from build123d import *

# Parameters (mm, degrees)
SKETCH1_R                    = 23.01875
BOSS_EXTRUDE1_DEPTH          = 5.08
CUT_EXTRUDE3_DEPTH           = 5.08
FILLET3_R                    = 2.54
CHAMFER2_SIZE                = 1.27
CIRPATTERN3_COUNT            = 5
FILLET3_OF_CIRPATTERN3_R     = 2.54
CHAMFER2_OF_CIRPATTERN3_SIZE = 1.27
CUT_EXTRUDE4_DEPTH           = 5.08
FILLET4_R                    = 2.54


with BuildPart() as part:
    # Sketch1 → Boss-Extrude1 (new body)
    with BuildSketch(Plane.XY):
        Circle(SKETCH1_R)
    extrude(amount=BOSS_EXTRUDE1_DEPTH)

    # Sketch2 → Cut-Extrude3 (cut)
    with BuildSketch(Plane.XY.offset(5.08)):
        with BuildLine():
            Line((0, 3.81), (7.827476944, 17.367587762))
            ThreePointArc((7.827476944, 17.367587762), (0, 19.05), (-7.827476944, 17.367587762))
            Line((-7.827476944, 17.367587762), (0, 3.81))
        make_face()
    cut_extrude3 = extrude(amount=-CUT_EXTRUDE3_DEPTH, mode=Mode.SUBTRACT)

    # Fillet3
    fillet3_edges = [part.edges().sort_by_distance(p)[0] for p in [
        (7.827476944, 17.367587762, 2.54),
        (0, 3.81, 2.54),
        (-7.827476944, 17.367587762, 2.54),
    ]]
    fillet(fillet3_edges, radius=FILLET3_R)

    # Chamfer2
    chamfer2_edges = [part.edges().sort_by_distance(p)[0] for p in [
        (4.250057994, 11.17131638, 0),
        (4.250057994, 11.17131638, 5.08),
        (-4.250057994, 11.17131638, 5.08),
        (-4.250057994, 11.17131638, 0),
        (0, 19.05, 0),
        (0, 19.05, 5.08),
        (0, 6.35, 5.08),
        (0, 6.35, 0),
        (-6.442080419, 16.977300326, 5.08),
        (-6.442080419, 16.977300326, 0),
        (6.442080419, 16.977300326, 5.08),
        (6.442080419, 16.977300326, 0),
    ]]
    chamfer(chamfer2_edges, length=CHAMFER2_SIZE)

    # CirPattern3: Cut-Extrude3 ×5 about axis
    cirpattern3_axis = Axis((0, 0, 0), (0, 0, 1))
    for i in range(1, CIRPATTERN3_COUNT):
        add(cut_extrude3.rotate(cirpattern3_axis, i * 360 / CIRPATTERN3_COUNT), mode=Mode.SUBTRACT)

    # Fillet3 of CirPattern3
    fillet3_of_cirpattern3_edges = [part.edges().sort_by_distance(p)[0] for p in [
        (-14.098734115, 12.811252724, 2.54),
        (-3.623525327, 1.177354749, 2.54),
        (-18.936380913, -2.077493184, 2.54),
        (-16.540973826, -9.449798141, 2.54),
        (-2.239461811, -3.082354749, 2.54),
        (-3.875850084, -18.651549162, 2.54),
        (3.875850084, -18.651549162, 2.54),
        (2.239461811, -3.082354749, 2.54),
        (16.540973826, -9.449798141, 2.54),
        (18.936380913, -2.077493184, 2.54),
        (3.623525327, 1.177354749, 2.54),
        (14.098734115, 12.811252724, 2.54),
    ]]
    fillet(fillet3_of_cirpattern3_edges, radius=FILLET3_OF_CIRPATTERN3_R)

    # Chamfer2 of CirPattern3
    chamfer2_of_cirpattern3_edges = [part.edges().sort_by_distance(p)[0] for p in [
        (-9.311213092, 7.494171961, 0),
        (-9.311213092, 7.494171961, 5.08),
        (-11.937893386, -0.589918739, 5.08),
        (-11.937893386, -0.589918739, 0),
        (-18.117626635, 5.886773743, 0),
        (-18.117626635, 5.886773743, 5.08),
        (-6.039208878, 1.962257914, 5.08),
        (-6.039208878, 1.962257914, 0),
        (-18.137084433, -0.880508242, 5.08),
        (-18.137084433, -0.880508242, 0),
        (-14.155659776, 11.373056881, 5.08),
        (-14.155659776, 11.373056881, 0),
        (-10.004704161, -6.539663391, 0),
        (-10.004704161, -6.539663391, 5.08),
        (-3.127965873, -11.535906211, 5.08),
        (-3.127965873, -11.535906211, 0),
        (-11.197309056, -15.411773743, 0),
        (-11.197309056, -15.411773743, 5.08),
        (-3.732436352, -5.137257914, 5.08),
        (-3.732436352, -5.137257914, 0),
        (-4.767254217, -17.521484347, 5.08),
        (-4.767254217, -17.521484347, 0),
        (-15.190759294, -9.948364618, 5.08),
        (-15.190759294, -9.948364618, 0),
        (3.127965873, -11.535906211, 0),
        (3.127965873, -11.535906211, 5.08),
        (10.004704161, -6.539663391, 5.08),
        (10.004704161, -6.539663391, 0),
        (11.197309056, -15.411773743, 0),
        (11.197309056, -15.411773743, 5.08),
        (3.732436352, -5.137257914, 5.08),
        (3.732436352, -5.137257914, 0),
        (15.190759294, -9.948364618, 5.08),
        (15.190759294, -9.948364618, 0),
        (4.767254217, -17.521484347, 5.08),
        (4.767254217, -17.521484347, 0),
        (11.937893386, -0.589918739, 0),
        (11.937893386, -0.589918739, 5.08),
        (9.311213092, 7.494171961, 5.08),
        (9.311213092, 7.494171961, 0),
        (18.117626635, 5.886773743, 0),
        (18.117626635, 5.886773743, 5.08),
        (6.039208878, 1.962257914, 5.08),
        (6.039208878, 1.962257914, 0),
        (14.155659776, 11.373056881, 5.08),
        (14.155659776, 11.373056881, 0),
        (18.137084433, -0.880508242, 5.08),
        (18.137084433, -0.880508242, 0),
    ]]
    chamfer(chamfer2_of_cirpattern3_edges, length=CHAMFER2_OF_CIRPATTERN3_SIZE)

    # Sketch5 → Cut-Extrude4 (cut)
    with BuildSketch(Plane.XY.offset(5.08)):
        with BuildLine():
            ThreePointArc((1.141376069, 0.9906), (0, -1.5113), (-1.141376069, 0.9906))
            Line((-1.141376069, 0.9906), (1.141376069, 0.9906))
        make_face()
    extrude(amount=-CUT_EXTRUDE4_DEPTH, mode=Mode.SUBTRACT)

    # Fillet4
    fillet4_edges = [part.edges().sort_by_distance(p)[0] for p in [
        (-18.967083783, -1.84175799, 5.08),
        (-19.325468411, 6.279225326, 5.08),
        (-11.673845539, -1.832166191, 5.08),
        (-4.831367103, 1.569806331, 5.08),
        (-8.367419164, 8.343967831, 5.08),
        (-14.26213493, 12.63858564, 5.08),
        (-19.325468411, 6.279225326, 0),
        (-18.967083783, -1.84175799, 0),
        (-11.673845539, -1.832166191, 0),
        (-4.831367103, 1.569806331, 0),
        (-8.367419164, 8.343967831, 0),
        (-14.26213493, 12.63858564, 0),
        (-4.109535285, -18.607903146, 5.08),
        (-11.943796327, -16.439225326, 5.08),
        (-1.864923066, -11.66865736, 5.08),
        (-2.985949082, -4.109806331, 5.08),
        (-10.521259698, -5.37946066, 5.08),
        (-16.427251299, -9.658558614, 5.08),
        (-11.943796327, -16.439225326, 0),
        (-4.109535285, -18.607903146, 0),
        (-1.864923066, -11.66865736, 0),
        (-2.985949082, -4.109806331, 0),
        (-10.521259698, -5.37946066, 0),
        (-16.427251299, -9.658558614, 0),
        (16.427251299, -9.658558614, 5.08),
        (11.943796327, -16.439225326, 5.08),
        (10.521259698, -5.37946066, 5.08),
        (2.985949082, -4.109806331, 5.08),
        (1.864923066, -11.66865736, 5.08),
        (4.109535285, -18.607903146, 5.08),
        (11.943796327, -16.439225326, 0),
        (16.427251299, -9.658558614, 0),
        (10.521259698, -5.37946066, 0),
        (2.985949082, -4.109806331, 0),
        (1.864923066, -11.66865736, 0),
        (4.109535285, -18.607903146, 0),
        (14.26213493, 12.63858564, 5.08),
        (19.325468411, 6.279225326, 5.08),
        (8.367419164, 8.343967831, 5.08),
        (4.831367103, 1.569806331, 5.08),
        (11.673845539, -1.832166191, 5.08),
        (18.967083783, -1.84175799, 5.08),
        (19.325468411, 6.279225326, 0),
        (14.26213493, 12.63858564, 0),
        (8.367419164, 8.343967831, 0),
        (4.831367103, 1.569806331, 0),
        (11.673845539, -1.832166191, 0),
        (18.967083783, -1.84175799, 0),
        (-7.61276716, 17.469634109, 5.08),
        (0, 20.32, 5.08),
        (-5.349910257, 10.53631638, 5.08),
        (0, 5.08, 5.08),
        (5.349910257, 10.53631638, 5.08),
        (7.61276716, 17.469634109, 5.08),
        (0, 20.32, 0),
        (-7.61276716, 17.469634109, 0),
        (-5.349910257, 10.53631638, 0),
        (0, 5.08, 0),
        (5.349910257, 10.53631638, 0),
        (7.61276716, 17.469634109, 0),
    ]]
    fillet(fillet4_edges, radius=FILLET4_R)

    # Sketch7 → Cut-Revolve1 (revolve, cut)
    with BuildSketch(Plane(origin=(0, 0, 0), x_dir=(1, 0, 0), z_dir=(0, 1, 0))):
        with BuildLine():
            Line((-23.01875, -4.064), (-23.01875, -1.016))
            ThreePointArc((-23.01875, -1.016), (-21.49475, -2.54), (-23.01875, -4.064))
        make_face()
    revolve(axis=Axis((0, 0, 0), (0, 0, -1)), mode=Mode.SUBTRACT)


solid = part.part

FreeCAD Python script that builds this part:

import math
import FreeCAD as App
import Part
import Sketcher
from FreeCAD import Vector
Q = App.Units.Quantity


def edges_at(feature, points):
    """Names of the edges that pass closest to the given points."""
    edges = feature.Shape.Edges
    near = lambda p: min(range(len(edges)), key=lambda i: edges[i].distToShape(Part.Vertex(*p))[0])
    return sorted({f"Edge{near(p) + 1}" for p in points})

doc = App.newDocument("Part")
body = doc.addObject("PartDesign::Body", "Body")

sketch1 = body.newObject("Sketcher::SketchObject", "Sketch")
sketch1.AttachmentSupport = (doc.getObject("XY_Plane"), [""])
sketch1.MapMode = "FlatFace"
sketch1.addGeometry(Part.Circle(Vector(0, 0, 0), Vector(0, 0, 1), 23.01875), False)
sketch1.addConstraint([
    Sketcher.Constraint("Coincident", 0, 3, -1, 1),
    Sketcher.Constraint("Diameter", 0, Q("1.8125 in")),
])
pad1 = body.newObject("PartDesign::Pad", "Pad")
pad1.Profile = sketch1
pad1.Length = Q("0.2 in")

sketch2 = body.newObject("Sketcher::SketchObject", "Sketch001")
sketch2.AttachmentSupport = (doc.getObject("XY_Plane"), [""])
sketch2.MapMode = "FlatFace"
sketch2.AttachmentOffset = App.Placement(Vector(0, 0, 0.2 * 25.4), App.Rotation())
sketch2.addGeometry([
    Part.LineSegment(Vector(0, 3.81, 0), Vector(7.827477, 17.367588, 0)),
    Part.ArcOfCircle(Part.Circle(Vector(0, 0, 0), Vector(0, 0, 1), 19.05), math.radians(65.73917), math.radians(114.26083)),
    Part.LineSegment(Vector(-7.827477, 17.367588, 0), Vector(0, 3.81, 0)),
], False)
sketch2.addConstraint([
    Sketcher.Constraint("Coincident", 0, 2, 1, 1),
    Sketcher.Constraint("Coincident", 1, 2, 2, 1),
    Sketcher.Constraint("Coincident", 2, 2, 0, 1),
    Sketcher.Constraint("Coincident", 1, 3, -1, 1),
    Sketcher.Constraint("PointOnObject", 2, 2, -2),
    Sketcher.Constraint("Horizontal", 0, 2, 1, 2),
    Sketcher.Constraint("Radius", 1, Q("0.75 in")),
    Sketcher.Constraint("Angle", 0, Q("60 deg")),
    Sketcher.Constraint("DistanceY", -1, 1, 2, 2, Q("0.15 in")),
])
pocket1 = body.newObject("PartDesign::Pocket", "Pocket")
pocket1.Profile = sketch2
pocket1.Length = Q("0.2 in")
doc.recompute()

fillet = body.newObject("PartDesign::Fillet", "Fillet")
fillet.Base = (pocket1, edges_at(pocket1, [(7.827, 17.368, 2.54), (0, 3.81, 2.54), (-7.827, 17.368, 2.54)]))
fillet.Radius = Q("0.1 in")
doc.recompute()

chamfer = body.newObject("PartDesign::Chamfer", "Chamfer")
chamfer.Base = (fillet, edges_at(fillet, [
    (4.25, 11.171, 0),
    (4.25, 11.171, 5.08),
    (-4.25, 11.171, 5.08),
    (-4.25, 11.171, 0),
    (0, 19.05, 0),
    (0, 19.05, 5.08),
    (0, 6.35, 5.08),
    (0, 6.35, 0),
    (-6.442, 16.977, 5.08),
    (-6.442, 16.977, 0),
    (6.442, 16.977, 5.08),
    (6.442, 16.977, 0),
]))
chamfer.Size = Q("0.05 in")
doc.recompute()

polarpattern = body.newObject("PartDesign::PolarPattern", "PolarPattern")
polarpattern.Originals = [pocket1]
polarpattern.Axis = (doc.getObject("Z_Axis"), [""])
polarpattern.Angle = 360
polarpattern.Occurrences = 5
body.Tip = polarpattern
doc.recompute()

fillet2 = body.newObject("PartDesign::Fillet", "Fillet001")
fillet2.Base = (polarpattern, edges_at(polarpattern, [
    (-14.099, 12.811, 2.54),
    (-3.624, 1.177, 2.54),
    (-18.936, -2.077, 2.54),
    (-16.541, -9.45, 2.54),
    (-2.239, -3.082, 2.54),
    (-3.876, -18.652, 2.54),
    (3.876, -18.652, 2.54),
    (2.239, -3.082, 2.54),
    (16.541, -9.45, 2.54),
    (18.936, -2.077, 2.54),
    (3.624, 1.177, 2.54),
    (14.099, 12.811, 2.54),
]))
fillet2.Radius = Q("0.1 in")
doc.recompute()

chamfer2 = body.newObject("PartDesign::Chamfer", "Chamfer001")
chamfer2.Base = (fillet2, edges_at(fillet2, [
    (-9.311, 7.494, 0),
    (-9.311, 7.494, 5.08),
    (-11.938, -0.59, 5.08),
    (-11.938, -0.59, 0),
    (-18.118, 5.887, 0),
    (-18.118, 5.887, 5.08),
    (-6.039, 1.962, 5.08),
    (-6.039, 1.962, 0),
    (-18.137, -0.881, 5.08),
    (-18.137, -0.881, 0),
    (-14.156, 11.373, 5.08),
    (-14.156, 11.373, 0),
    (-10.005, -6.54, 0),
    (-10.005, -6.54, 5.08),
    (-3.128, -11.536, 5.08),
    (-3.128, -11.536, 0),
    (-11.197, -15.412, 0),
    (-11.197, -15.412, 5.08),
    (-3.732, -5.137, 5.08),
    (-3.732, -5.137, 0),
    (-4.767, -17.521, 5.08),
    (-4.767, -17.521, 0),
    (-15.191, -9.948, 5.08),
    (-15.191, -9.948, 0),
    (3.128, -11.536, 0),
    (3.128, -11.536, 5.08),
    (10.005, -6.54, 5.08),
    (10.005, -6.54, 0),
    (11.197, -15.412, 0),
    (11.197, -15.412, 5.08),
    (3.732, -5.137, 5.08),
    (3.732, -5.137, 0),
    (15.191, -9.948, 5.08),
    (15.191, -9.948, 0),
    (4.767, -17.521, 5.08),
    (4.767, -17.521, 0),
    (11.938, -0.59, 0),
    (11.938, -0.59, 5.08),
    (9.311, 7.494, 5.08),
    (9.311, 7.494, 0),
    (18.118, 5.887, 0),
    (18.118, 5.887, 5.08),
    (6.039, 1.962, 5.08),
    (6.039, 1.962, 0),
    (14.156, 11.373, 5.08),
    (14.156, 11.373, 0),
    (18.137, -0.881, 5.08),
    (18.137, -0.881, 0),
]))
chamfer2.Size = Q("0.05 in")

sketch3 = body.newObject("Sketcher::SketchObject", "Sketch002")
sketch3.AttachmentSupport = (doc.getObject("XY_Plane"), [""])
sketch3.MapMode = "FlatFace"
sketch3.AttachmentOffset = App.Placement(Vector(0, 0, 0.2 * 25.4), App.Rotation())
sketch3.addGeometry([
    Part.ArcOfCircle(Part.Circle(Vector(0, 0, 0), Vector(0, 0, 1), 1.5113), math.radians(139.045295), math.radians(400.954705)),
    Part.LineSegment(Vector(1.141376, 0.9906, 0), Vector(-1.141376, 0.9906, 0)),
], False)
sketch3.addConstraint([
    Sketcher.Constraint("Coincident", 0, 1, 1, 2),
    Sketcher.Constraint("Coincident", 1, 1, 0, 2),
    Sketcher.Constraint("Horizontal", 1),
    Sketcher.Constraint("Coincident", 0, 3, -1, 1),
    Sketcher.Constraint("Radius", 0, Q("0.0595 in")),
    Sketcher.Constraint("DistanceY", -1, 1, 0, 1, Q("0.039 in")),
])
pocket2 = body.newObject("PartDesign::Pocket", "Pocket001")
pocket2.Profile = sketch3
pocket2.Length = Q("0.2 in")
doc.recompute()

fillet3 = body.newObject("PartDesign::Fillet", "Fillet002")
fillet3.Base = (pocket2, edges_at(pocket2, [
    (-18.967, -1.842, 5.08),
    (-19.325, 6.279, 5.08),
    (-11.674, -1.832, 5.08),
    (-4.831, 1.57, 5.08),
    (-8.367, 8.344, 5.08),
    (-14.262, 12.639, 5.08),
    (-19.325, 6.279, 0),
    (-18.967, -1.842, 0),
    (-11.674, -1.832, 0),
    (-4.831, 1.57, 0),
    (-8.367, 8.344, 0),
    (-14.262, 12.639, 0),
    (-4.11, -18.608, 5.08),
    (-11.944, -16.439, 5.08),
    (-1.865, -11.669, 5.08),
    (-2.986, -4.11, 5.08),
    (-10.521, -5.379, 5.08),
    (-16.427, -9.659, 5.08),
    (-11.944, -16.439, 0),
    (-4.11, -18.608, 0),
    (-1.865, -11.669, 0),
    (-2.986, -4.11, 0),
    (-10.521, -5.379, 0),
    (-16.427, -9.659, 0),
    (16.427, -9.659, 5.08),
    (11.944, -16.439, 5.08),
    (10.521, -5.379, 5.08),
    (2.986, -4.11, 5.08),
    (1.865, -11.669, 5.08),
    (4.11, -18.608, 5.08),
    (11.944, -16.439, 0),
    (16.427, -9.659, 0),
    (10.521, -5.379, 0),
    (2.986, -4.11, 0),
    (1.865, -11.669, 0),
    (4.11, -18.608, 0),
    (14.262, 12.639, 5.08),
    (19.325, 6.279, 5.08),
    (8.367, 8.344, 5.08),
    (4.831, 1.57, 5.08),
    (11.674, -1.832, 5.08),
    (18.967, -1.842, 5.08),
    (19.325, 6.279, 0),
    (14.262, 12.639, 0),
    (8.367, 8.344, 0),
    (4.831, 1.57, 0),
    (11.674, -1.832, 0),
    (18.967, -1.842, 0),
    (-7.613, 17.47, 5.08),
    (0, 20.32, 5.08),
    (-5.35, 10.536, 5.08),
    (0, 5.08, 5.08),
    (5.35, 10.536, 5.08),
    (7.613, 17.47, 5.08),
    (0, 20.32, 0),
    (-7.613, 17.47, 0),
    (-5.35, 10.536, 0),
    (0, 5.08, 0),
    (5.35, 10.536, 0),
    (7.613, 17.47, 0),
]))
fillet3.Radius = Q("0.1 in")

sketch4 = body.newObject("Sketcher::SketchObject", "Sketch003")
sketch4.AttachmentSupport = (doc.getObject("XZ_Plane"), [""])
sketch4.MapMode = "FlatFace"
sketch4.addGeometry([
    Part.LineSegment(Vector(-23.01875, 1.016, 0), Vector(-23.01875, 4.064, 0)),
    Part.ArcOfCircle(Part.Circle(Vector(-23.01875, 2.54, 0), Vector(0, 0, 1), 1.524), math.radians(-90), math.radians(90)),
], False)
sketch4.addConstraint([
    Sketcher.Constraint("Coincident", 0, 1, 1, 1),
    Sketcher.Constraint("Coincident", 1, 2, 0, 2),
    Sketcher.Constraint("Vertical", 0),
    Sketcher.Constraint("Vertical", 1, 3, 0, 1),
    Sketcher.Constraint("Radius", 1, Q("0.06 in")),
    Sketcher.Constraint("DistanceY", -1, 1, 1, 3, Q("0.1 in")),
    Sketcher.Constraint("DistanceX", 1, 3, -1, 1, Q("0.90625 in")),
])
groove = body.newObject("PartDesign::Groove", "Groove")
groove.Profile = sketch4
groove.ReferenceAxis = (sketch4, ["V_Axis"])
groove.Angle = 360

doc.recompute()
